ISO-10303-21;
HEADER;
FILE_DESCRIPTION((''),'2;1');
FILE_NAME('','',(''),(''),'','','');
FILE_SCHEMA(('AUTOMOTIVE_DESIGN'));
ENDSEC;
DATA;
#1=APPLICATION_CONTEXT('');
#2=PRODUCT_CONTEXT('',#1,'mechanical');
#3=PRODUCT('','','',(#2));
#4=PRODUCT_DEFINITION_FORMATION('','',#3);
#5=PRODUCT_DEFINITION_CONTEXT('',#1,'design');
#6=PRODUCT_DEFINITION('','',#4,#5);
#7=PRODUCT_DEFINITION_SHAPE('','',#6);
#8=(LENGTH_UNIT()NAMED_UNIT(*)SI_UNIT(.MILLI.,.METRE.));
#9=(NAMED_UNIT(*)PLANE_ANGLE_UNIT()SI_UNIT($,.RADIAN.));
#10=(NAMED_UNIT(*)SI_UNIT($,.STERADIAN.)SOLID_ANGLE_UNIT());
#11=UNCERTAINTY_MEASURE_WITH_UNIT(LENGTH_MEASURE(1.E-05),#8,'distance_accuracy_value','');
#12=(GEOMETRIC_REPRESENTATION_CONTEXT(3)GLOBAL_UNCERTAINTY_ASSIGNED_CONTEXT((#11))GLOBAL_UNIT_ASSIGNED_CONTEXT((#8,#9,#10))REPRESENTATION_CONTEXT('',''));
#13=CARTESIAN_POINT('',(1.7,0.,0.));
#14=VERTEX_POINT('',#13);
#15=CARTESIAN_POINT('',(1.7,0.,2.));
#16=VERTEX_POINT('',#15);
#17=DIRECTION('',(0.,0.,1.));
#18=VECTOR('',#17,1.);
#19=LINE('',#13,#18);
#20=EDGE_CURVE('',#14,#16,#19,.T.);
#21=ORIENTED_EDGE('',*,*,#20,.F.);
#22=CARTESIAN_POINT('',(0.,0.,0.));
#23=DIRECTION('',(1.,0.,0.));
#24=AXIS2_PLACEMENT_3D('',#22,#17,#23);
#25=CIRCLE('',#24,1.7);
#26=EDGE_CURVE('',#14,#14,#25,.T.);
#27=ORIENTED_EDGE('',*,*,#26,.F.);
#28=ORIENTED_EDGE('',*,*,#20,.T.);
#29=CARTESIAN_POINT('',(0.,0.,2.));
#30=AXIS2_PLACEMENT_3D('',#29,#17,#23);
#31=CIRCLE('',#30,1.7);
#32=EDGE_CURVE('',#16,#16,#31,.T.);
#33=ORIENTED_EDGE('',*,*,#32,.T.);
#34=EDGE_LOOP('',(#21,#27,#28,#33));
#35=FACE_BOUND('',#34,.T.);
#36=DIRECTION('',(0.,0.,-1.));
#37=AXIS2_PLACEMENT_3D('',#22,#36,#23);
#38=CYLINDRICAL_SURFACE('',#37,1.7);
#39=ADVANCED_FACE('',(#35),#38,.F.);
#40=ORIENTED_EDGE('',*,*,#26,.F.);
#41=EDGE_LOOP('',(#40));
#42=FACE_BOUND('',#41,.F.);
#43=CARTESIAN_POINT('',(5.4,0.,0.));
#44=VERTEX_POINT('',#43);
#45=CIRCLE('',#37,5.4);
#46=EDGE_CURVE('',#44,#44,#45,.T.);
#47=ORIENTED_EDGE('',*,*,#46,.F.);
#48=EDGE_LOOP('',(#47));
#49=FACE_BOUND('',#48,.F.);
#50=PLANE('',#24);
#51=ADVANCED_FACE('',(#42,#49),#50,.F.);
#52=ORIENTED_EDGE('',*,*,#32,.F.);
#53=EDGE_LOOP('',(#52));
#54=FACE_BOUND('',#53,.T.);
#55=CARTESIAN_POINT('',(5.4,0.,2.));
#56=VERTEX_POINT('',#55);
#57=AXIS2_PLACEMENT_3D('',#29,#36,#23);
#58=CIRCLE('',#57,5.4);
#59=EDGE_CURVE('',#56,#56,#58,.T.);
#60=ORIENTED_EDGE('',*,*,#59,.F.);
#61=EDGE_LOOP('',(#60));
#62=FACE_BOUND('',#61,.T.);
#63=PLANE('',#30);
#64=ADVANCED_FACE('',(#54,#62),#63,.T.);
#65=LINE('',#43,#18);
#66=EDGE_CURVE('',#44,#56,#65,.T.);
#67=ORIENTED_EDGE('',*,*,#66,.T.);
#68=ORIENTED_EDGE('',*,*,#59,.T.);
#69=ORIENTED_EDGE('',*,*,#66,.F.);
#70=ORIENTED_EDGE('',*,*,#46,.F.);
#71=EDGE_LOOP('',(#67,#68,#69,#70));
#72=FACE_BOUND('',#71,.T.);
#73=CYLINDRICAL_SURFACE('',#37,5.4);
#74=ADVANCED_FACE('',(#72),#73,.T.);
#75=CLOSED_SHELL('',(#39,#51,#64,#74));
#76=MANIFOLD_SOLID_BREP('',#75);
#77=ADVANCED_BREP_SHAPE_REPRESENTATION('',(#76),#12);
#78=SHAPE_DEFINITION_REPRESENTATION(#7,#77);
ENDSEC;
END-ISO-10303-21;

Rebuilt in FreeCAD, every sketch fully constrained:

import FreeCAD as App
import Part
import Sketcher
from FreeCAD import Vector
Q = App.Units.Quantity

doc = App.newDocument("Part")
body = doc.addObject("PartDesign::Body", "Body")

sketch1 = doc.addObject("Sketcher::SketchObject", "Sketch")
body.addObject(sketch1)
sketch1.AttachmentSupport = (doc.XY_Plane, [""])
sketch1.MapMode = "FlatFace"
sketch1.addGeometry([
    Part.Circle(Vector(0, 0, 0), Vector(0, 0, 1), 7.5),
    Part.Circle(Vector(0, 0, 0), Vector(0, 0, 1), 1.7),
], False)
sketch1.addConstraint([
    Sketcher.Constraint("Coincident", 0, 3, -1, 1),
    Sketcher.Constraint("Coincident", 1, 3, -1, 1),
    Sketcher.Constraint("Diameter", 0, Q("15 mm")),
    Sketcher.Constraint("Diameter", 1, Q("3.4 mm")),
])
pad1 = doc.addObject("PartDesign::Pad", "Pad")
body.addObject(pad1)
pad1.Profile = sketch1
pad1.Length = 2

sketch2 = doc.addObject("Sketcher::SketchObject", "Sketch001")
body.addObject(sketch2)
sketch2.AttachmentSupport = (doc.XY_Plane, [""])
sketch2.MapMode = "FlatFace"
sketch2.addGeometry([
    Part.Circle(Vector(0, 0, 0), Vector(0, 0, 1), 7.5),
    Part.Circle(Vector(0, 0, 0), Vector(0, 0, 1), 5.4),
], False)
sketch2.addConstraint([
    Sketcher.Constraint("Coincident", 0, 3, -1, 1),
    Sketcher.Constraint("Coincident", 1, 3, -1, 1),
    Sketcher.Constraint("Diameter", 0, Q("15 mm")),
    Sketcher.Constraint("Diameter", 1, Q("10.8 mm")),
])
pocket1 = doc.addObject("PartDesign::Pocket", "Pocket")
body.addObject(pocket1)
pocket1.Profile = sketch2
pocket1.Type = "ThroughAll"
pocket1.Reversed = True

doc.recompute()
